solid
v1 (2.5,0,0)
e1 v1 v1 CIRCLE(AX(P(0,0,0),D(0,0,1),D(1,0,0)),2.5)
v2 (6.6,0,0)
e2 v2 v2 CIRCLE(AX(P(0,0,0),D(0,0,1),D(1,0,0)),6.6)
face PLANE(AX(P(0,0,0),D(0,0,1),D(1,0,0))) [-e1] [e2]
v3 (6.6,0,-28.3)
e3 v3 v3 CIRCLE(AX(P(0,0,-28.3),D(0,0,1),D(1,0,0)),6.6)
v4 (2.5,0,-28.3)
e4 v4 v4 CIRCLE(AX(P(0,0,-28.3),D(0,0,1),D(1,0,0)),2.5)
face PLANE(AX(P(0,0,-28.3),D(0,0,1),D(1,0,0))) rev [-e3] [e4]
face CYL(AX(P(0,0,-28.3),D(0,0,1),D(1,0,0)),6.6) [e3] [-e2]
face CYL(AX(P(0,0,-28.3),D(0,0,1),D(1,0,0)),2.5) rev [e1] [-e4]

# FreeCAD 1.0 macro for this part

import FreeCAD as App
import Part
import Sketcher

doc = App.newDocument("Part")
body = doc.addObject("PartDesign::Body", "Body")

# Sketch on XY plane
sketch1 = body.newObject("Sketcher::SketchObject", "Sketch")
sketch1.AttachmentSupport = (doc.getObject("XY_Plane"), [""])
sketch1.MapMode = "FlatFace"
sketch1.addGeometry([
    Part.Circle(App.Vector(0, 0, 0), App.Vector(0, 0, 1), 6.6),
    Part.Circle(App.Vector(0, 0, 0), App.Vector(0, 0, 1), 2.5),
], False)
sketch1.addConstraint([
    Sketcher.Constraint("Coincident", 0, 3, -1, 1),
    Sketcher.Constraint("Coincident", 1, 3, -1, 1),
    Sketcher.Constraint("Diameter", 1, 5.0),
    Sketcher.Constraint("Diameter", 0, 13.2),
])
pad1 = body.newObject("PartDesign::Pad", "Pad")
pad1.Profile = sketch1
pad1.Length = 28.3
pad1.Reversed = True

doc.recompute()
